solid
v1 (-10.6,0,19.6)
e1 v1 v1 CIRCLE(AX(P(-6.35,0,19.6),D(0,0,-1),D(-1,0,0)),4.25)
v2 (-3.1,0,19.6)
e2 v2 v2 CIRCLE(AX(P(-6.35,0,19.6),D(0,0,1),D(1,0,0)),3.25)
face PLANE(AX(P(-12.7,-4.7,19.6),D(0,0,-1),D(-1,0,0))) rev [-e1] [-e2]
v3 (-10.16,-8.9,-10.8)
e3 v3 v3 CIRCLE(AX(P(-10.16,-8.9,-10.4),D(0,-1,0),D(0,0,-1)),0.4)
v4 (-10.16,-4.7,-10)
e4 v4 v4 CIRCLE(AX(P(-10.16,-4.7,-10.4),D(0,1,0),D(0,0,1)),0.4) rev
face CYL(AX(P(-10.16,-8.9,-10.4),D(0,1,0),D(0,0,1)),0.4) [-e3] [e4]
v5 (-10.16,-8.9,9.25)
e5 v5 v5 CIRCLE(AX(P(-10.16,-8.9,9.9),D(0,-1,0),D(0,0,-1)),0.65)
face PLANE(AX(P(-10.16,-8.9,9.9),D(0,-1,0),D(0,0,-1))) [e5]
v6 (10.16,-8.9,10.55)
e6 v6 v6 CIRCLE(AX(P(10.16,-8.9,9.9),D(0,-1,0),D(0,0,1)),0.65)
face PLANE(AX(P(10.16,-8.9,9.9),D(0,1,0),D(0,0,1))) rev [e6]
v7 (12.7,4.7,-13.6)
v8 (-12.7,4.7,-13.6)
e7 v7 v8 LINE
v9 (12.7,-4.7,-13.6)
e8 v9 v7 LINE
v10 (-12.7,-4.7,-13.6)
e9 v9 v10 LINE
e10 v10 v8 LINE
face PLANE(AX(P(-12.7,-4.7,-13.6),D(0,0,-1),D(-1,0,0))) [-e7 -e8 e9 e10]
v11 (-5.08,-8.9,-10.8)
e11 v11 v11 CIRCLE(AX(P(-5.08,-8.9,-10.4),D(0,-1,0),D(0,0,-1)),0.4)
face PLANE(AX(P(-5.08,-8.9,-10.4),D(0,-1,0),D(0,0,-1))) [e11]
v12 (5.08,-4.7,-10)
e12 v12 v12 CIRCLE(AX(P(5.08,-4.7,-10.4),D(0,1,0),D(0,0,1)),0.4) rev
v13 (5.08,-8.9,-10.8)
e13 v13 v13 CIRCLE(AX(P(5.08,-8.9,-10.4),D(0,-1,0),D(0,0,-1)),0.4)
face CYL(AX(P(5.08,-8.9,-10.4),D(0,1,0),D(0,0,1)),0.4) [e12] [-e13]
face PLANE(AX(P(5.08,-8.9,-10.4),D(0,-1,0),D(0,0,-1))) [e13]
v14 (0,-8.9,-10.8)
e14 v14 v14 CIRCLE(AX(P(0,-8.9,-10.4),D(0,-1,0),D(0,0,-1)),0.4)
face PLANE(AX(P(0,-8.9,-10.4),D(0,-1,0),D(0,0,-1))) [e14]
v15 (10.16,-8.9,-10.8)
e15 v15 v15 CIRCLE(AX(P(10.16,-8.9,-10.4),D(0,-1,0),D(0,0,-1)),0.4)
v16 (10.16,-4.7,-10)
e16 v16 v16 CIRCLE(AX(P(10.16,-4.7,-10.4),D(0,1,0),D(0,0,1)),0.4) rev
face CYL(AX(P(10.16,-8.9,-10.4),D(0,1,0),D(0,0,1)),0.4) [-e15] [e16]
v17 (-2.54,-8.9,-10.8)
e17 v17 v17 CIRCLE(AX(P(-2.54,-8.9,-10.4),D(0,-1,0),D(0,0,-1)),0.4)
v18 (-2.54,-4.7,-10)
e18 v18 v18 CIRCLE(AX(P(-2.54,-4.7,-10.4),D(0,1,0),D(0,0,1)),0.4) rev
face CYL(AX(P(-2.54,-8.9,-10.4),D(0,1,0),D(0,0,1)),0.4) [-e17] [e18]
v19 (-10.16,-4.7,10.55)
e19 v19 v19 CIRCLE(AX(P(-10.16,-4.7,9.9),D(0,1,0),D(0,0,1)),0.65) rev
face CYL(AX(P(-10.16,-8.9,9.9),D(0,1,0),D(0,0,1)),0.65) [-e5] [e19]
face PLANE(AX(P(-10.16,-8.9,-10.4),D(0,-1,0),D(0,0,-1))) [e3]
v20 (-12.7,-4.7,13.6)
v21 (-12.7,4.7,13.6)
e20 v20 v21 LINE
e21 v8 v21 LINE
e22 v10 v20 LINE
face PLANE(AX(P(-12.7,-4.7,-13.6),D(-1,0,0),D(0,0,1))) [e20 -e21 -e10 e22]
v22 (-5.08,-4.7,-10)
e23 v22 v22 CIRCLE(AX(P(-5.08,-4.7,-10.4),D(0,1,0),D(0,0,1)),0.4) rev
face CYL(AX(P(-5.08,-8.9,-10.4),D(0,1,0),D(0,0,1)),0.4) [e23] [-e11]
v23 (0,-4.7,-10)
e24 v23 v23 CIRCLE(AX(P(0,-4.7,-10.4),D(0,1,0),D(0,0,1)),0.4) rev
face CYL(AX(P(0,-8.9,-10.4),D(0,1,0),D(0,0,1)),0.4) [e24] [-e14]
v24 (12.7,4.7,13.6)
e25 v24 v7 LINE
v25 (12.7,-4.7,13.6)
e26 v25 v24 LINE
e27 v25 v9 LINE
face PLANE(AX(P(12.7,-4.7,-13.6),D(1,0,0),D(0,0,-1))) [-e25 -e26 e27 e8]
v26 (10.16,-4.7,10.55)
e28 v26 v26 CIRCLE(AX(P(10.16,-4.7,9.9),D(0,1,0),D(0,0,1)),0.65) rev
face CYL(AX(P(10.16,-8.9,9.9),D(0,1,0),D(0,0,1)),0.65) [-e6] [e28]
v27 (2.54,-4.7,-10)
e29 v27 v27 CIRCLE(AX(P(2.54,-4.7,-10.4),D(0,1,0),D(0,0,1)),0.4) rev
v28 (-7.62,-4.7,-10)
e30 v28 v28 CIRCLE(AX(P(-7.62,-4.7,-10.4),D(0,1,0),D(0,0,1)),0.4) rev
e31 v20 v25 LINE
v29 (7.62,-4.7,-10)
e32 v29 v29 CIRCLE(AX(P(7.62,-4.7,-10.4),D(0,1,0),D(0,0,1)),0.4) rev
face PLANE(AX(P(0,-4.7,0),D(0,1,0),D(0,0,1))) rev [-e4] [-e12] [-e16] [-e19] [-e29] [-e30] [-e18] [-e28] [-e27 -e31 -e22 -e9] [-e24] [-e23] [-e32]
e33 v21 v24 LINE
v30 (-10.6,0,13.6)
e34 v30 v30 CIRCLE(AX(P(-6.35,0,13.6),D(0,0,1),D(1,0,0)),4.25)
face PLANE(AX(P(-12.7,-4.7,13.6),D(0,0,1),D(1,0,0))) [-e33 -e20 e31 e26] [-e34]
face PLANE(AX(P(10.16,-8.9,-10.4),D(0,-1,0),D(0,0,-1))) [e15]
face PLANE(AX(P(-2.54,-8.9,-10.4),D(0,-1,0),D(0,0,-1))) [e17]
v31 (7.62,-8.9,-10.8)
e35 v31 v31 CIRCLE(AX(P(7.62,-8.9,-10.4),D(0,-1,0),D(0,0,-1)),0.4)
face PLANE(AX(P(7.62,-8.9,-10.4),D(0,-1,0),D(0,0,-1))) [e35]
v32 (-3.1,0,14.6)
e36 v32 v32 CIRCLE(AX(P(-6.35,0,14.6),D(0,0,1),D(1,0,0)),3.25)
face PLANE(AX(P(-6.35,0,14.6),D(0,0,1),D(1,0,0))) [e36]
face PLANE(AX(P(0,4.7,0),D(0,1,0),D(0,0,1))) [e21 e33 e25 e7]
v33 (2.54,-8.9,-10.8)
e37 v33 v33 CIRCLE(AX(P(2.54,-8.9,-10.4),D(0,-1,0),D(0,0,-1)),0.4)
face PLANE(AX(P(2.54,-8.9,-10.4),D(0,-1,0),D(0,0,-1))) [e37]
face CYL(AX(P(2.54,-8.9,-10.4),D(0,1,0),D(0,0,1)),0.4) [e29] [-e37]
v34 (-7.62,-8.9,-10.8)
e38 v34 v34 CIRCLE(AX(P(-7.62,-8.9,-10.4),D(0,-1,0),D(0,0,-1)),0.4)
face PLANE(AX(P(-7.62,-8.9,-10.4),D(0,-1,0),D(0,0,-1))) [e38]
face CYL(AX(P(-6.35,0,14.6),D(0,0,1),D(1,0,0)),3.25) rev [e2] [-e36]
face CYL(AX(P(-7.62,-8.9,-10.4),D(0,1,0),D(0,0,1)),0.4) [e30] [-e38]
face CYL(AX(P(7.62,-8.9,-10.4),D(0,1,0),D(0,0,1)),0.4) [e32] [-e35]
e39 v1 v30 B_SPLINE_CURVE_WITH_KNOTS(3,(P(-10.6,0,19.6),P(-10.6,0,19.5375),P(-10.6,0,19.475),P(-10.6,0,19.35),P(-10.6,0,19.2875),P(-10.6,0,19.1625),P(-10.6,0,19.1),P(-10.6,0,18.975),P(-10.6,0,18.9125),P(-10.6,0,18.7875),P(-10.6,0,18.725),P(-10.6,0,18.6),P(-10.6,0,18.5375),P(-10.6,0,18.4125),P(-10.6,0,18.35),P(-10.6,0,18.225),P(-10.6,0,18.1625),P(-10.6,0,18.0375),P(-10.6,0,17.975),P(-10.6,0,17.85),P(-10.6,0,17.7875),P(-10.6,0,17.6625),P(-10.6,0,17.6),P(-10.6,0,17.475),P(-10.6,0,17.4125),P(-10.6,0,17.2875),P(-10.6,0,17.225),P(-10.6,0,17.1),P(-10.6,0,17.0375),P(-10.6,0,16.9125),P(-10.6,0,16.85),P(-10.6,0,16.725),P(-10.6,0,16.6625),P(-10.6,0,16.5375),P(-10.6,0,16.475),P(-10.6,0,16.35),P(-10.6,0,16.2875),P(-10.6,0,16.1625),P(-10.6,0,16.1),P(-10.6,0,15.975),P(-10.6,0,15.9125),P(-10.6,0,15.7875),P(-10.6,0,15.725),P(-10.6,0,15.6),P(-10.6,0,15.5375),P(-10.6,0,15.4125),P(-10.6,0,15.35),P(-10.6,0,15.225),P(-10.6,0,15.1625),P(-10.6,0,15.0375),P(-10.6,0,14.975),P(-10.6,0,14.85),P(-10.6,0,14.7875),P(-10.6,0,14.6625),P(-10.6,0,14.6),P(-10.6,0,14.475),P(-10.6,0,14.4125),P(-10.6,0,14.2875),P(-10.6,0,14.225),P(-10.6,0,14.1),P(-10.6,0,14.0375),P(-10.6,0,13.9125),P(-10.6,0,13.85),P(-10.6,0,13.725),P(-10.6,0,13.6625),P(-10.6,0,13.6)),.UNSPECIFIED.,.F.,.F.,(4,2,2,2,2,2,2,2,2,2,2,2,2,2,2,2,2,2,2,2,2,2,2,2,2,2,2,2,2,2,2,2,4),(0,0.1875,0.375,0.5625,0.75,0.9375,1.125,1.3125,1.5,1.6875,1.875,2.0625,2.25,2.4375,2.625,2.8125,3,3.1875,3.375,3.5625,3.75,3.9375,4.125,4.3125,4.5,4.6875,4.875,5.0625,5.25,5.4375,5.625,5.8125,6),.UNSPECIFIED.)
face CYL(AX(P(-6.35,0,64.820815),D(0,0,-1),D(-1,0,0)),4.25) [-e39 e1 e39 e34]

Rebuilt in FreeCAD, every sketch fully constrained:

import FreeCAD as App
import Part
import Sketcher

V = App.Vector

doc = App.newDocument("Part")
body = doc.addObject("PartDesign::Body", "Body")

sketch1 = body.newObject("Sketcher::SketchObject", "Sketch")
sketch1.AttachmentSupport = (doc.getObject("XZ_Plane"), [""])
sketch1.MapMode = "FlatFace"
sketch1.addGeometry([
    Part.LineSegment(V(-13, -14, 0), V(-13, 14, 0)),
    Part.LineSegment(V(-13, 14, 0), V(13, 14, 0)),
    Part.LineSegment(V(13, 14, 0), V(13, -14, 0)),
    Part.LineSegment(V(13, -14, 0), V(-13, -14, 0)),
], False)
sketch1.addConstraint([
    Sketcher.Constraint("Coincident", 0, 2, 1, 1),
    Sketcher.Constraint("Coincident", 1, 2, 2, 1),
    Sketcher.Constraint("Coincident", 2, 2, 3, 1),
    Sketcher.Constraint("Coincident", 3, 2, 0, 1),
    Sketcher.Constraint("Vertical", 0),
    Sketcher.Constraint("Horizontal", 1),
    Sketcher.Constraint("Vertical", 2),
    Sketcher.Constraint("Horizontal", 3),
    Sketcher.Constraint("Symmetric", 0, 2, 2, 2, -1, 1),
    Sketcher.Constraint("DistanceX", 1, 1, 1, 2, 25.4),
    Sketcher.Constraint("DistanceY", 0, 1, 0, 2, 27.2),
])
pad1 = body.newObject("PartDesign::Pad", "Pad")
pad1.Profile = sketch1
pad1.Type = "TwoLengths"
pad1.Length = 4.7
pad1.Length2 = 4.7
pad1.Reversed = True

sketch2 = body.newObject("Sketcher::SketchObject", "Sketch001")
sketch2.AttachmentSupport = (doc.getObject("XY_Plane"), [""])
sketch2.MapMode = "FlatFace"
sketch2.AttachmentOffset = App.Placement(V(0, 0, 13.6), App.Rotation())
sketch2.addGeometry(Part.Circle(V(-6.3, 0, 0), V(0, 0, 1), 4.2), False)
sketch2.addConstraint([
    Sketcher.Constraint("PointOnObject", 0, 3, -1),
    Sketcher.Constraint("Diameter", 0, 8.5),
    Sketcher.Constraint("DistanceX", 0, 3, -1, 1, 6.35),
])
pad2 = body.newObject("PartDesign::Pad", "Pad001")
pad2.Profile = sketch2
pad2.Length = 6

sketch3 = body.newObject("Sketcher::SketchObject", "Sketch002")
sketch3.AttachmentSupport = (doc.getObject("XY_Plane"), [""])
sketch3.MapMode = "FlatFace"
sketch3.AttachmentOffset = App.Placement(V(0, 0, 19.6), App.Rotation())
sketch3.addGeometry(Part.Circle(V(-6.3, 0, 0), V(0, 0, 1), 3.2), False)
sketch3.addConstraint([
    Sketcher.Constraint("PointOnObject", 0, 3, -1),
    Sketcher.Constraint("Diameter", 0, 6.5),
    Sketcher.Constraint("DistanceX", 0, 3, -1, 1, 6.35),
])
pocket1 = body.newObject("PartDesign::Pocket", "Pocket")
pocket1.Profile = sketch3
pocket1.Length = 5

sketch4 = body.newObject("Sketcher::SketchObject", "Sketch003")
sketch4.AttachmentSupport = (doc.getObject("XZ_Plane"), [""])
sketch4.MapMode = "FlatFace"
sketch4.AttachmentOffset = App.Placement(V(0, 0, 4.7), App.Rotation())
sketch4.addGeometry([
    Part.Circle(V(-10.16, 9.9, 0), V(0, 0, 1), 0.65),
    Part.Circle(V(10.16, 9.9, 0), V(0, 0, 1), 0.65),
    Part.Circle(V(-10.16, -10.4, 0), V(0, 0, 1), 0.4),
    Part.Circle(V(-7.62, -10.4, 0), V(0, 0, 1), 0.4),
    Part.Circle(V(-5.08, -10.4, 0), V(0, 0, 1), 0.4),
    Part.Circle(V(-2.54, -10.4, 0), V(0, 0, 1), 0.4),
    Part.Circle(V(0, -10.4, 0), V(0, 0, 1), 0.4),
    Part.Circle(V(2.54, -10.4, 0), V(0, 0, 1), 0.4),
    Part.Circle(V(5.08, -10.4, 0), V(0, 0, 1), 0.4),
    Part.Circle(V(7.62, -10.4, 0), V(0, 0, 1), 0.4),
    Part.Circle(V(10.16, -10.4, 0), V(0, 0, 1), 0.4),
], False)
sketch4.addConstraint([
    Sketcher.Constraint("Equal", 0, 1),
    Sketcher.Constraint("Equal", 2, 3),
    Sketcher.Constraint("Equal", 3, 4),
    Sketcher.Constraint("Equal", 4, 5),
    Sketcher.Constraint("Equal", 5, 6),
    Sketcher.Constraint("Equal", 6, 7),
    Sketcher.Constraint("Equal", 7, 8),
    Sketcher.Constraint("Equal", 8, 9),
    Sketcher.Constraint("Equal", 9, 10),
    Sketcher.Constraint("Symmetric", 0, 3, 1, 3, -2),
    Sketcher.Constraint("Symmetric", 5, 3, 7, 3, -2),
    Sketcher.Constraint("Symmetric", 4, 3, 8, 3, -2),
    Sketcher.Constraint("Symmetric", 3, 3, 9, 3, -2),
    Sketcher.Constraint("Symmetric", 2, 3, 10, 3, -2),
    Sketcher.Constraint("PointOnObject", 6, 3, -2),
    Sketcher.Constraint("Horizontal", 2, 3, 3, 3),
    Sketcher.Constraint("Horizontal", 3, 3, 4, 3),
    Sketcher.Constraint("Horizontal", 4, 3, 5, 3),
    Sketcher.Constraint("Horizontal", 5, 3, 6, 3),
    Sketcher.Constraint("Vertical", 0, 3, 2, 3),
    Sketcher.Constraint("Diameter", 0, 1.3),
    Sketcher.Constraint("Diameter", 2, 0.8),
    Sketcher.Constraint("DistanceY", -1, 1, 0, 3, 9.9),
    Sketcher.Constraint("DistanceY", 2, 3, -1, 1, 10.4),
    Sketcher.Constraint("DistanceX", 5, 3, 1, 3, 12.7),
    Sketcher.Constraint("DistanceX", 3, 3, 8, 3, 12.7),
    Sketcher.Constraint("DistanceX", 0, 3, -1, 1, 10.16),
    Sketcher.Constraint("DistanceX", 3, 3, -1, 1, 7.62),
])
pad3 = body.newObject("PartDesign::Pad", "Pad002")
pad3.Profile = sketch4
pad3.Length = 4.2

doc.recompute()
